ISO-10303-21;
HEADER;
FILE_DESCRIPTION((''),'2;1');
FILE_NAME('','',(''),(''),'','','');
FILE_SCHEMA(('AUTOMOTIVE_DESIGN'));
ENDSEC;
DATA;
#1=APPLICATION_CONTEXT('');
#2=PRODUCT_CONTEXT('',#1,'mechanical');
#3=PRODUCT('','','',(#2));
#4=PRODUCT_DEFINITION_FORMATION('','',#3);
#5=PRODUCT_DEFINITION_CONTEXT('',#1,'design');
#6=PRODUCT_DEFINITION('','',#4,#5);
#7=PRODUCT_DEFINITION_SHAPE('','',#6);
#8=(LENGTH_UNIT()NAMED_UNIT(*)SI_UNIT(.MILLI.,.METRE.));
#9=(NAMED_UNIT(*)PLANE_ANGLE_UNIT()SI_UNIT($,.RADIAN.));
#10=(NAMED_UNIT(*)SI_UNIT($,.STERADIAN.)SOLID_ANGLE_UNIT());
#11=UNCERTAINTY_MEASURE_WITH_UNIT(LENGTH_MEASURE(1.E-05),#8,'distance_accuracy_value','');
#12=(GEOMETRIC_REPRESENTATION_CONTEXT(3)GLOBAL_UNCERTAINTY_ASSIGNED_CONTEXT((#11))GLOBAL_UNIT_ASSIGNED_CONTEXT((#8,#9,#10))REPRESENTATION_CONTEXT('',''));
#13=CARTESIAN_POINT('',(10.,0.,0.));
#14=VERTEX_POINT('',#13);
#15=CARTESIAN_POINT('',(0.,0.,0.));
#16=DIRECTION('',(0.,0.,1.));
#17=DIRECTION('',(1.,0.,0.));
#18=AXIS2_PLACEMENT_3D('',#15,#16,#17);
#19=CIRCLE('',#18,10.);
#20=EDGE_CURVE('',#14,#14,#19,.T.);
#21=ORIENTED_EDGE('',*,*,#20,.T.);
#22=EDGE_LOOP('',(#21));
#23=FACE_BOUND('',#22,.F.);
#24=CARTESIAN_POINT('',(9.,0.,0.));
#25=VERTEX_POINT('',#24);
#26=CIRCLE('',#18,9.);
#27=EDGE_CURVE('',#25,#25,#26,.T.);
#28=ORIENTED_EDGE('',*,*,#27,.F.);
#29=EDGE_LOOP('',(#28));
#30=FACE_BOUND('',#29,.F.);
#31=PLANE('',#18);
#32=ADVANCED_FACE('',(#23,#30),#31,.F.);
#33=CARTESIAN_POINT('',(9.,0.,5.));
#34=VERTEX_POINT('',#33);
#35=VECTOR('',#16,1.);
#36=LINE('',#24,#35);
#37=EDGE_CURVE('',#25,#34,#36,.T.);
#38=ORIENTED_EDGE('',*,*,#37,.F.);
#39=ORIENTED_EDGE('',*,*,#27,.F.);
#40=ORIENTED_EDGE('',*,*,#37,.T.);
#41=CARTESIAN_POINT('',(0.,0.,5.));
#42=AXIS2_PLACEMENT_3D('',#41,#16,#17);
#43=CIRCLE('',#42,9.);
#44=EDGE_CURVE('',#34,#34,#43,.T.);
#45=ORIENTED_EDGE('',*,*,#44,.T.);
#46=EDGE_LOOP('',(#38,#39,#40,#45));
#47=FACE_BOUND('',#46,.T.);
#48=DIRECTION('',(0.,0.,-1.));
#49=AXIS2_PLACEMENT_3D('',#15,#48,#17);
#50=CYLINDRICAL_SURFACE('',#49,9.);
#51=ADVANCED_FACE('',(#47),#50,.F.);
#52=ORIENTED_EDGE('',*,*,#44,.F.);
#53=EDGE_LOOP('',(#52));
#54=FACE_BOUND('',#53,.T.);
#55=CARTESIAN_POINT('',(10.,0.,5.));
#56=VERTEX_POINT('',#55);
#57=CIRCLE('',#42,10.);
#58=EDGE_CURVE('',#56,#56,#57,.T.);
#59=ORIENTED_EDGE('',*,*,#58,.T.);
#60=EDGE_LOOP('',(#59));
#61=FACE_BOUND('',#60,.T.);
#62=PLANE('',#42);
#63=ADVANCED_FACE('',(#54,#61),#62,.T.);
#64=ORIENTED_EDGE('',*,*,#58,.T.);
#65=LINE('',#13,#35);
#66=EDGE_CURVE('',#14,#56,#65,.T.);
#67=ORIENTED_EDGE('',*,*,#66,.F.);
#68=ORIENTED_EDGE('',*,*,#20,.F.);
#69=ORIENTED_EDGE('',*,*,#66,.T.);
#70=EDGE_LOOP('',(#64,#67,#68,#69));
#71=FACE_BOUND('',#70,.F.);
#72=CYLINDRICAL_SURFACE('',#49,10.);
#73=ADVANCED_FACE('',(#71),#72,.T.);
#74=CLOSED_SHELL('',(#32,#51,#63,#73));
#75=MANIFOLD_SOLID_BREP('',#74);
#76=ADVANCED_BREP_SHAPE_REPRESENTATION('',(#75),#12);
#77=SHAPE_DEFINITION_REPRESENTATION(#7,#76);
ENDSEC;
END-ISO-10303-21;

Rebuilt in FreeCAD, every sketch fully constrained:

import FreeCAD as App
import Part
import Sketcher

doc = App.newDocument("Part")
body = doc.addObject("PartDesign::Body", "Body")

sketch1 = doc.addObject("Sketcher::SketchObject", "Sketch")
body.addObject(sketch1)
sketch1.AttachmentSupport = (doc.XY_Plane, [""])
sketch1.MapMode = "FlatFace"
sketch1.addGeometry([
    Part.Circle(App.Vector(0, 0, 0), App.Vector(0, 0, 1), 10),
    Part.Circle(App.Vector(0, 0, 0), App.Vector(0, 0, 1), 9),
], False)
sketch1.addConstraint([
    Sketcher.Constraint("Coincident", 0, 3, -1, 1),
    Sketcher.Constraint("Coincident", 1, 3, -1, 1),
    Sketcher.Constraint("Diameter", 0, 20.0),
    Sketcher.Constraint("Diameter", 1, 18.0),
])
pad1 = doc.addObject("PartDesign::Pad", "Pad")
body.addObject(pad1)
pad1.Profile = sketch1
pad1.Length = 5

doc.recompute()
